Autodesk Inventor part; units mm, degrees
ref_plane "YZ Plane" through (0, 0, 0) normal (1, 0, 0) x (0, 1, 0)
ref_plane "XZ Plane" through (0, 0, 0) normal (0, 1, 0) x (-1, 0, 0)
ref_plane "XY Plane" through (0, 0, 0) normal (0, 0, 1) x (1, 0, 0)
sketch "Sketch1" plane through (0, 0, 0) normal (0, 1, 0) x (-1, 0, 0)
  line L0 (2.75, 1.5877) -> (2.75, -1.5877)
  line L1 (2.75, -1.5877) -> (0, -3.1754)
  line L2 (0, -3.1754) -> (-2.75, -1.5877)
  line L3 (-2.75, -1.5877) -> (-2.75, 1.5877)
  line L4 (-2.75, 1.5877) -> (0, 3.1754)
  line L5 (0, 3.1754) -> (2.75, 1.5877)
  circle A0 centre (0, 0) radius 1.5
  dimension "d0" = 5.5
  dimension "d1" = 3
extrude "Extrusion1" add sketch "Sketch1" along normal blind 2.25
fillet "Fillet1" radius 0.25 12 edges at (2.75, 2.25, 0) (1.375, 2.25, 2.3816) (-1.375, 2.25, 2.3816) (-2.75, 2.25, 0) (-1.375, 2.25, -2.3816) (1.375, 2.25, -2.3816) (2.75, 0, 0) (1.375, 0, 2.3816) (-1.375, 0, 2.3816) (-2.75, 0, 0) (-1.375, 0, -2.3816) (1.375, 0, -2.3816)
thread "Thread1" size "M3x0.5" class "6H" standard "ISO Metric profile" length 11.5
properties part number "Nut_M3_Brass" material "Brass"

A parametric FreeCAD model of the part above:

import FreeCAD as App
import Part
import Sketcher

V = App.Vector
Q = App.Units.Quantity


def edges_at(feature, points):
    """Names of the edges that pass closest to the given points."""
    edges = feature.Shape.Edges
    near = lambda p: min(range(len(edges)), key=lambda i: edges[i].distToShape(Part.Vertex(*p))[0])
    return sorted({f"Edge{near(p) + 1}" for p in points})

doc = App.newDocument("Part")
body = doc.addObject("PartDesign::Body", "Body")

# Sketch on XZ plane
sketch1 = doc.addObject("Sketcher::SketchObject", "Sketch")
body.addObject(sketch1)
sketch1.AttachmentSupport = (doc.XZ_Plane, [""])
sketch1.MapMode = "FlatFace"
sketch1.addGeometry(Part.LineSegment(V(-2.75, -1.5877, 0), V(-2.75, 1.5877, 0)), False)
sketch1.addGeometry(Part.LineSegment(V(-2.75, 1.5877, 0), V(0, 3.1754, 0)), False)
sketch1.addGeometry(Part.LineSegment(V(0, 3.1754, 0), V(2.75, 1.5877, 0)), False)
sketch1.addGeometry(Part.LineSegment(V(2.75, 1.5877, 0), V(2.75, -1.5877, 0)), False)
sketch1.addGeometry(Part.LineSegment(V(2.75, -1.5877, 0), V(0, -3.1754, 0)), False)
sketch1.addGeometry(Part.LineSegment(V(0, -3.1754, 0), V(-2.75, -1.5877, 0)), False)
sketch1.addGeometry(Part.Circle(V(0, 0, 0), V(0, 0, 1), 1.5), False)
sketch1.addConstraint(Sketcher.Constraint("Coincident", 0, 2, 1, 1))
sketch1.addConstraint(Sketcher.Constraint("Coincident", 1, 2, 2, 1))
sketch1.addConstraint(Sketcher.Constraint("Coincident", 2, 2, 3, 1))
sketch1.addConstraint(Sketcher.Constraint("Coincident", 3, 2, 4, 1))
sketch1.addConstraint(Sketcher.Constraint("Coincident", 4, 2, 5, 1))
sketch1.addConstraint(Sketcher.Constraint("Coincident", 5, 2, 0, 1))
sketch1.addConstraint(Sketcher.Constraint("Vertical", 0))
sketch1.addConstraint(Sketcher.Constraint("Vertical", 3))
sketch1.addConstraint(Sketcher.Constraint("Coincident", 6, 3, -1, 1))
sketch1.addConstraint(Sketcher.Constraint("Symmetric", 0, 2, 3, 2, -1, 1))
sketch1.addConstraint(Sketcher.Constraint("Symmetric", 1, 2, 4, 2, -1, 1))
sketch1.addConstraint(Sketcher.Constraint("PointOnObject", 1, 2, -2))
sketch1.addConstraint(Sketcher.Constraint("Parallel", 2, 5))
sketch1.addConstraint(Sketcher.Constraint("Horizontal", 0, 2, 2, 2))
sketch1.addConstraint(Sketcher.Constraint("Diameter", 6, 3.0))
sketch1.addConstraint(Sketcher.Constraint("DistanceX", 0, 2, 2, 2, 5.5))
sketch1.addConstraint(Sketcher.Constraint("Angle", 1, Q("29.9998 deg")))
sketch1.addConstraint(Sketcher.Constraint("DistanceY", 0, 1, 0, 2, 3.1754))
pad1 = doc.addObject("PartDesign::Pad", "Pad")
body.addObject(pad1)
pad1.Profile = sketch1
pad1.Length = 2.25
pad1.Reversed = True
doc.recompute()

fillet = doc.addObject("PartDesign::Fillet", "Fillet")
body.addObject(fillet)
fillet.Base = (pad1, edges_at(pad1, [
    (2.75, 2.25, 0),
    (1.375, 2.25, 2.382),
    (-1.375, 2.25, 2.382),
    (-2.75, 2.25, 0),
    (-1.375, 2.25, -2.382),
    (1.375, 2.25, -2.382),
    (2.75, 0, 0),
    (1.375, 0, 2.382),
    (-1.375, 0, 2.382),
    (-2.75, 0, 0),
    (-1.375, 0, -2.382),
    (1.375, 0, -2.382),
]))
fillet.Radius = 0.25

doc.recompute()
